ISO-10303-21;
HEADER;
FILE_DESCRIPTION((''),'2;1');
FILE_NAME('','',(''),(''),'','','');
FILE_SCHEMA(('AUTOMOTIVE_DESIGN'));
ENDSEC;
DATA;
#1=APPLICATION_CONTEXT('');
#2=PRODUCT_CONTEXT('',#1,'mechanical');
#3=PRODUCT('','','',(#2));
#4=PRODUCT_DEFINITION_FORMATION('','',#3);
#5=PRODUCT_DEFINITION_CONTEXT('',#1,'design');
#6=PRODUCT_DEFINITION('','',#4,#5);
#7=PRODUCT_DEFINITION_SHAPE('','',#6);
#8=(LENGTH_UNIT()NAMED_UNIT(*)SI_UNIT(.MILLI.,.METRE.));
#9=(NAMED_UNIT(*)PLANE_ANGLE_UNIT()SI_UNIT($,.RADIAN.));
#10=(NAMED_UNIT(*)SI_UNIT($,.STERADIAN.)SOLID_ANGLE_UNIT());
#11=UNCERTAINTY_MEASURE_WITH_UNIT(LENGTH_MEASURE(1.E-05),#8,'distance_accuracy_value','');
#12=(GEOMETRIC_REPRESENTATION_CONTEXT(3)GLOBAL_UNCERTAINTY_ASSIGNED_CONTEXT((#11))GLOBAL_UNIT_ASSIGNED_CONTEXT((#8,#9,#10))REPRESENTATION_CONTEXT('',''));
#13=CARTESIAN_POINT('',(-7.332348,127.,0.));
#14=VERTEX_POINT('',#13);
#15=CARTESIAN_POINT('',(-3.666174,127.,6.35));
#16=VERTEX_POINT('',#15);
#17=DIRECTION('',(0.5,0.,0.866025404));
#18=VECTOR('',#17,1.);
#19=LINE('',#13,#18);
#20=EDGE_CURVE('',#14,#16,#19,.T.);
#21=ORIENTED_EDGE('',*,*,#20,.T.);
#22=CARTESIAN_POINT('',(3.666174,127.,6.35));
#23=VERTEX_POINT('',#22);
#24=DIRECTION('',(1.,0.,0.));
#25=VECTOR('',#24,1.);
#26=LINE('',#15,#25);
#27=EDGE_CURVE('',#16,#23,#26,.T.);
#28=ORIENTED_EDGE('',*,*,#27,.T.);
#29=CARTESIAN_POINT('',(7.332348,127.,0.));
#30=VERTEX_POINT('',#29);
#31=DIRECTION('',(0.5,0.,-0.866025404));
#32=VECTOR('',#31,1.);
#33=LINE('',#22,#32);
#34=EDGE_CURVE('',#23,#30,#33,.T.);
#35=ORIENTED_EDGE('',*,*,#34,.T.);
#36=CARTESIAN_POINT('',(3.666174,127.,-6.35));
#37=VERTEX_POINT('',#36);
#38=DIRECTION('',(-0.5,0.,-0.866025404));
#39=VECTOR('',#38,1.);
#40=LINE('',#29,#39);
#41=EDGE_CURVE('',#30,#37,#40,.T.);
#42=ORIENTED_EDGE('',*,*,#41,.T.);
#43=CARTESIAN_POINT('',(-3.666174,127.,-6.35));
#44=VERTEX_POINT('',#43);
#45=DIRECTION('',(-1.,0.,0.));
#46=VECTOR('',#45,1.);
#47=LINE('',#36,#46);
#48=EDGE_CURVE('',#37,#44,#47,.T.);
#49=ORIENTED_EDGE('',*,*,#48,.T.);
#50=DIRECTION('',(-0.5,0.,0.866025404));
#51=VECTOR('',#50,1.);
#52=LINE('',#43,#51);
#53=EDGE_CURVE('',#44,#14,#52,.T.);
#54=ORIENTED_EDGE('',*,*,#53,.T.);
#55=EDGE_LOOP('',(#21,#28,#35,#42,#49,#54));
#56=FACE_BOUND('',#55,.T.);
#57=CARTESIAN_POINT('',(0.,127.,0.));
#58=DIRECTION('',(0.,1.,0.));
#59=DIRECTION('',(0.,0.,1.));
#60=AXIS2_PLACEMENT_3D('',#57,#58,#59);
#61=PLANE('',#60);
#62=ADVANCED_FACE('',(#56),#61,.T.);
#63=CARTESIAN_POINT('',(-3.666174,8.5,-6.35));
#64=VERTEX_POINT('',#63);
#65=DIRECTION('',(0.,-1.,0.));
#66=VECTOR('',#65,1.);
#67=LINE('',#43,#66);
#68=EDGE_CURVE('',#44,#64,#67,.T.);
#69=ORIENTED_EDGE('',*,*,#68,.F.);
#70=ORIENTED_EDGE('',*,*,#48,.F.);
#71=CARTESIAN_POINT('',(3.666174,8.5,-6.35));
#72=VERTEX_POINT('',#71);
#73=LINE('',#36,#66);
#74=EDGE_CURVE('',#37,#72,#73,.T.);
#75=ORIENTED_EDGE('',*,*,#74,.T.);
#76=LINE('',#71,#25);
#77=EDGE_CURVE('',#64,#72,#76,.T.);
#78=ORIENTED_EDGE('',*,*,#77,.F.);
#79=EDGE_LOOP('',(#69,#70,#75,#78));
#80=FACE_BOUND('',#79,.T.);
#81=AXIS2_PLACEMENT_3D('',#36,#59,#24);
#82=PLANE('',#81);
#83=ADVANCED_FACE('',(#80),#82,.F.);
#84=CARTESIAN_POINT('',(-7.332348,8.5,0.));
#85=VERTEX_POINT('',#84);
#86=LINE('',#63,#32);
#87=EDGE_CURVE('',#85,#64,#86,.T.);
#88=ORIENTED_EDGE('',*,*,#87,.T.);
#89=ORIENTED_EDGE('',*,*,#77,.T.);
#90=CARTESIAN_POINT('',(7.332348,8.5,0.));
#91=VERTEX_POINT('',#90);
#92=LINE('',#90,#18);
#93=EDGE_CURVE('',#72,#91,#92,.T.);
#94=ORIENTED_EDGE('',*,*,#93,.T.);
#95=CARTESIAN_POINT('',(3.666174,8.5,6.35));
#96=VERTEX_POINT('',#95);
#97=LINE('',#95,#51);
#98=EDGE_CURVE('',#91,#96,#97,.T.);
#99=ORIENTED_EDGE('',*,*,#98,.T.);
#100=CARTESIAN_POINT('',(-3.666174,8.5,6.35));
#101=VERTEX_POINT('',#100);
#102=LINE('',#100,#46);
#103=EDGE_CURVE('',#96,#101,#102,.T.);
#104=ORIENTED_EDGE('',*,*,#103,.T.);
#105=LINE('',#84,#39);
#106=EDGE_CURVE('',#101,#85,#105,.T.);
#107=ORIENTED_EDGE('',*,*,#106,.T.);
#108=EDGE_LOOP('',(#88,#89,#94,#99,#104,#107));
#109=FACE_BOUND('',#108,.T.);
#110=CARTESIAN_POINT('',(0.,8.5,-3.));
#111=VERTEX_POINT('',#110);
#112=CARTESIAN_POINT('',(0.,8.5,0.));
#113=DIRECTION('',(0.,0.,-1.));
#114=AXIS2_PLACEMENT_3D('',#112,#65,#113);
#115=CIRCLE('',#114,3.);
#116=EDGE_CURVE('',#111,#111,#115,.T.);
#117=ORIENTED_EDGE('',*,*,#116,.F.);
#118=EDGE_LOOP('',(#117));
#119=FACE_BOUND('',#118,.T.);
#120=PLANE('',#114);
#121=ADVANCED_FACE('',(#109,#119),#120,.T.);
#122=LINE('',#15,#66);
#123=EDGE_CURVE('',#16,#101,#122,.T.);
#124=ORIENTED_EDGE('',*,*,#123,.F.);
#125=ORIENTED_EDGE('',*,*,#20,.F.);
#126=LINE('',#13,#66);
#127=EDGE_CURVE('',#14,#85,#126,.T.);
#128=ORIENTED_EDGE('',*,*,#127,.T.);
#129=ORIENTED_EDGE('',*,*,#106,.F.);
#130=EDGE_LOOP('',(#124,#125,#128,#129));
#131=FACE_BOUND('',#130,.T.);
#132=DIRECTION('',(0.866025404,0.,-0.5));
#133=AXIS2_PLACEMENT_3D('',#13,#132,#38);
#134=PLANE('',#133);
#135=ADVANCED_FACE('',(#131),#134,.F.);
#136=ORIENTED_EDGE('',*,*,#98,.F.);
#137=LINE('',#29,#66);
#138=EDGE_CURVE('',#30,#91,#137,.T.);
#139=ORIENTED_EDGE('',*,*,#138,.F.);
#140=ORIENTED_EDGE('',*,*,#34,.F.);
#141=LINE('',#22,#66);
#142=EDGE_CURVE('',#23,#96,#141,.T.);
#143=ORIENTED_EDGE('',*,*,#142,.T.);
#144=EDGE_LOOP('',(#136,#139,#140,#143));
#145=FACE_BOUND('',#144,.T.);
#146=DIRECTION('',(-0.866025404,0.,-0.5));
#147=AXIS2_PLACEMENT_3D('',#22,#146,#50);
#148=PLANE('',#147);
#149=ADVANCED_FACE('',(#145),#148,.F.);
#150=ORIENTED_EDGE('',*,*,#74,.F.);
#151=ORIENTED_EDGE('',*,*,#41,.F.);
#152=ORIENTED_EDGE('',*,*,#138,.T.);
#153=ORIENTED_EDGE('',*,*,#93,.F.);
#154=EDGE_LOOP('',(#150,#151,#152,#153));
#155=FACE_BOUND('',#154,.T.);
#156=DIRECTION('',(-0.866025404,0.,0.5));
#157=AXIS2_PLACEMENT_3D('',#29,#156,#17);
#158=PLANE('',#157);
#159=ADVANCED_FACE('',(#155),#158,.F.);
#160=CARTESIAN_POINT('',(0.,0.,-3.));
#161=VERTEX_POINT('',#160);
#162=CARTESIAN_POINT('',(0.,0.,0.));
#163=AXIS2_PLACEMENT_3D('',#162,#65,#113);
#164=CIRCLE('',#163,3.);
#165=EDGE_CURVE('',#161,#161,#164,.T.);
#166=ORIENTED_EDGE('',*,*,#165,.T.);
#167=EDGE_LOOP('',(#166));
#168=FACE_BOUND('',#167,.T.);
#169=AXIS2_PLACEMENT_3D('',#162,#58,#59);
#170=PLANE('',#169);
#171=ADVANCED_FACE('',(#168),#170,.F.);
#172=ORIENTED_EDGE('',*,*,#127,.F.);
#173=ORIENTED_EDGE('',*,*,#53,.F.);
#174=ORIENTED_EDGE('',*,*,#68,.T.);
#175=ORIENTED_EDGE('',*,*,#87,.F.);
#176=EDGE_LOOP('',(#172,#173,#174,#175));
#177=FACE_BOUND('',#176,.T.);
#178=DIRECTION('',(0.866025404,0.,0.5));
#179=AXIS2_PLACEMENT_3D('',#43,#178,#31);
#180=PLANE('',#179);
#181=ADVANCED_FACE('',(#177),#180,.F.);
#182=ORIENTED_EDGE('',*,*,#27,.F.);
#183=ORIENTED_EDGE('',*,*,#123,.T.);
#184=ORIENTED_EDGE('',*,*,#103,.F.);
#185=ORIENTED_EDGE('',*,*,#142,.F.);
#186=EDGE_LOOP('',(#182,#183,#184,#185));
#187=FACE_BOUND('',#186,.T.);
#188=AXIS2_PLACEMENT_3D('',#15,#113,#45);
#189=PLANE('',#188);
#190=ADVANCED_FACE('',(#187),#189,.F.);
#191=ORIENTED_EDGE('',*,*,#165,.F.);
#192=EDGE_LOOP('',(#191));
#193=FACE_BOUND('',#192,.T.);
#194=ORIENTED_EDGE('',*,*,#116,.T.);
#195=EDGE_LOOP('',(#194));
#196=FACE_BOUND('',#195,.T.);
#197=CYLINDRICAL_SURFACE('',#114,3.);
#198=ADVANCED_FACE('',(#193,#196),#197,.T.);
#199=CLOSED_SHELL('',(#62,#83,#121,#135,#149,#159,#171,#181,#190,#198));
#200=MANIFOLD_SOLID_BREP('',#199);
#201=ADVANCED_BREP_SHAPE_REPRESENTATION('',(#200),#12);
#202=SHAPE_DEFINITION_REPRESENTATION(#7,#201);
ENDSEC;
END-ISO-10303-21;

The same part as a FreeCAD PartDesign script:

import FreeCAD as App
import Part
import Sketcher
Q = App.Units.Quantity

doc = App.newDocument("Part")
body = doc.addObject("PartDesign::Body", "Body")

# Sketch on XZ plane
sketch1 = body.newObject("Sketcher::SketchObject", "Sketch")
sketch1.AttachmentSupport = (doc.getObject("XZ_Plane"), [""])
sketch1.MapMode = "FlatFace"
sketch1.addGeometry([
    Part.LineSegment(App.Vector(7, 0, 0), App.Vector(4, -6, 0)),  # 0
    Part.LineSegment(App.Vector(4, -6, 0), App.Vector(-4, -6, 0)),  # 1
    Part.LineSegment(App.Vector(-4, -6, 0), App.Vector(-7, 0, 0)),  # 2
    Part.LineSegment(App.Vector(-7, 0, 0), App.Vector(-4, 6, 0)),  # 3
    Part.LineSegment(App.Vector(-4, 6, 0), App.Vector(4, 6, 0)),  # 4
    Part.LineSegment(App.Vector(4, 6, 0), App.Vector(7, 0, 0)),  # 5
], False)
sketch1.addConstraint([
    Sketcher.Constraint("Coincident", 0, 2, 1, 1),
    Sketcher.Constraint("Coincident", 1, 2, 2, 1),
    Sketcher.Constraint("Coincident", 2, 2, 3, 1),
    Sketcher.Constraint("Coincident", 3, 2, 4, 1),
    Sketcher.Constraint("Coincident", 4, 2, 5, 1),
    Sketcher.Constraint("Coincident", 5, 2, 0, 1),
    Sketcher.Constraint("Horizontal", 1),
    Sketcher.Constraint("Horizontal", 4),
    Sketcher.Constraint("Symmetric", 0, 2, 3, 2, -1, 1),
    Sketcher.Constraint("Symmetric", 2, 2, 5, 2, -1, 1),
    Sketcher.Constraint("PointOnObject", 2, 2, -1),
    Sketcher.Constraint("Parallel", 2, 5),
    Sketcher.Constraint("Vertical", 1, 2, 3, 2),
    Sketcher.Constraint("Angle", 0, Q("-120 deg")),
    Sketcher.Constraint("DistanceY", 1, 2, 3, 2, 12.7),
    Sketcher.Constraint("DistanceX", 1, 2, 1, 1, 7.332348),
])
pad1 = body.newObject("PartDesign::Pad", "Pad")
pad1.Profile = sketch1
pad1.Length = 127
pad1.Reversed = True

# Sketch on XZ plane
sketch2 = body.newObject("Sketcher::SketchObject", "Sketch001")
sketch2.AttachmentSupport = (doc.getObject("XZ_Plane"), [""])
sketch2.MapMode = "FlatFace"
sketch2.addGeometry([
    Part.Circle(App.Vector(0, 0, 0), App.Vector(0, 0, 1), 18.3),
    Part.Circle(App.Vector(0, 0, 0), App.Vector(0, 0, 1), 3),
], False)
sketch2.addConstraint([
    Sketcher.Constraint("Coincident", 0, 3, -1, 1),
    Sketcher.Constraint("Coincident", 1, 3, -1, 1),
    Sketcher.Constraint("Diameter", 1, 6.0),
    Sketcher.Constraint("Diameter", 0, 36.62323),
])
pocket1 = body.newObject("PartDesign::Pocket", "Pocket")
pocket1.Profile = sketch2
pocket1.Length = 8.5

doc.recompute()
